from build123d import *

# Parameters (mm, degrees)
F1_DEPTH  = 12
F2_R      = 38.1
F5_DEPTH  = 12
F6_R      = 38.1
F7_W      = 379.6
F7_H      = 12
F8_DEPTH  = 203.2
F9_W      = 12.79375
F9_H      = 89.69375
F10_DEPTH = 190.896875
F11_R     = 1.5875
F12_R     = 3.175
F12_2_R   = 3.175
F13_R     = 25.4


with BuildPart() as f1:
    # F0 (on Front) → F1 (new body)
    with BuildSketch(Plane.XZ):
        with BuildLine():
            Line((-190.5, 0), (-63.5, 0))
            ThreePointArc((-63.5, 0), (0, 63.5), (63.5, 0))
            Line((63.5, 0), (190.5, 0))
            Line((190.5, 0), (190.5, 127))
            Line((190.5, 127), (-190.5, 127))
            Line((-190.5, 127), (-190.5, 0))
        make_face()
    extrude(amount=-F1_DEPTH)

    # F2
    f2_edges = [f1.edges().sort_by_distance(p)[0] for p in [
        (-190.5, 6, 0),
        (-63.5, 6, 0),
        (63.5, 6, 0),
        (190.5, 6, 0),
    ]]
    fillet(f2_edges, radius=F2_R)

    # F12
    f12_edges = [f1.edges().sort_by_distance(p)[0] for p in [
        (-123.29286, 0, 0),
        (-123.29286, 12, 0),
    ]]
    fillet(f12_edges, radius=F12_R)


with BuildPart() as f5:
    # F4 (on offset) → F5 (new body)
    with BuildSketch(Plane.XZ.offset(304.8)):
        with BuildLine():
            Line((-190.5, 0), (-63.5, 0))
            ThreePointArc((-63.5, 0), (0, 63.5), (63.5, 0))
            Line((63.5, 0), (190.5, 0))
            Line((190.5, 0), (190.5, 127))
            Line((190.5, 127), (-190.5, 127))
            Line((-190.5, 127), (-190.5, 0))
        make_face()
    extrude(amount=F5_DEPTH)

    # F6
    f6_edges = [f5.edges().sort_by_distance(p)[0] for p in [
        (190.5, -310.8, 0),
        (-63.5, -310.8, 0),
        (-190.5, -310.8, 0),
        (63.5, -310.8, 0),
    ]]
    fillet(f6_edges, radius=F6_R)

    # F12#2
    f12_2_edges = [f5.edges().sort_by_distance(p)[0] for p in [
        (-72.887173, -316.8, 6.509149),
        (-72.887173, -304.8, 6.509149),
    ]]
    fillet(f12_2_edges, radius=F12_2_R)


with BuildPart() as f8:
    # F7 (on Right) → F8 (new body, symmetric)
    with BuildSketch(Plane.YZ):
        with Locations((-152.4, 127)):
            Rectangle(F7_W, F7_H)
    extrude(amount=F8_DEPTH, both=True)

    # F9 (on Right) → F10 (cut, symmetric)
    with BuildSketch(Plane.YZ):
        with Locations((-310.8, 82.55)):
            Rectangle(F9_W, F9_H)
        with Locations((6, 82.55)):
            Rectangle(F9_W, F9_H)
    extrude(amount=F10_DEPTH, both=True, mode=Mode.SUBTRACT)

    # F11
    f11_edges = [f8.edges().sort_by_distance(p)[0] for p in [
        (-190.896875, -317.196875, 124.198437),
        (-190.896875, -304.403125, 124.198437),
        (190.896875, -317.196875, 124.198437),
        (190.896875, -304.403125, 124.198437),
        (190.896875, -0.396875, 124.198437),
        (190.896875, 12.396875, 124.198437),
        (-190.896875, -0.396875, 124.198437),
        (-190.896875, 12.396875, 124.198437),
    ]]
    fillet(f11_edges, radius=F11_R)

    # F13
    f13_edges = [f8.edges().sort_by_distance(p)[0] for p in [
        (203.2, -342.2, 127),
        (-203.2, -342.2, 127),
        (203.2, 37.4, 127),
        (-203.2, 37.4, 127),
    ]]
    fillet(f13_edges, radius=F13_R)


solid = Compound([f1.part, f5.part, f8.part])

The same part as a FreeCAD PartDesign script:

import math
import FreeCAD as App
import Part
import Sketcher
from FreeCAD import Vector
Q = App.Units.Quantity


def edges_at(feature, points):
    """Names of the edges that pass closest to the given points."""
    edges = feature.Shape.Edges
    near = lambda p: min(range(len(edges)), key=lambda i: edges[i].distToShape(Part.Vertex(*p))[0])
    return sorted({f"Edge{near(p) + 1}" for p in points})


def add_polygon(sketch, points):
    """Adds a closed chain of lines whose ends are joined by coincident constraints."""
    first, n = sketch.GeometryCount, len(points)
    for a, b in zip(points, points[1:] + points[:1]):
        sketch.addGeometry(Part.LineSegment(App.Vector(*a, 0), App.Vector(*b, 0)), False)
    for i in range(n):
        sketch.addConstraint(Sketcher.Constraint("Coincident", first + i, 2, first + (i + 1) % n, 1))

doc = App.newDocument("Part")
body = doc.addObject("PartDesign::Body", "Body")

# Sketch on XZ plane
sketch1 = body.newObject("Sketcher::SketchObject", "Sketch")
sketch1.AttachmentSupport = (doc.getObject("XZ_Plane"), [""])
sketch1.MapMode = "FlatFace"
sketch1.addGeometry(Part.LineSegment(Vector(-190.5, 0, 0), Vector(-63.5, 0, 0)), False)
sketch1.addGeometry(Part.ArcOfCircle(Part.Circle(Vector(0, 0, 0), Vector(0, 0, 1), 63.5), math.radians(0), math.radians(180)), False)
sketch1.addGeometry(Part.LineSegment(Vector(63.5, 0, 0), Vector(190.5, 0, 0)), False)
sketch1.addGeometry(Part.LineSegment(Vector(190.5, 0, 0), Vector(190.5, 127, 0)), False)
sketch1.addGeometry(Part.LineSegment(Vector(190.5, 127, 0), Vector(-190.5, 127, 0)), False)
sketch1.addGeometry(Part.LineSegment(Vector(-190.5, 127, 0), Vector(-190.5, 0, 0)), False)
sketch1.addConstraint(Sketcher.Constraint("Coincident", 0, 2, 1, 2))
sketch1.addConstraint(Sketcher.Constraint("Coincident", 1, 1, 2, 1))
sketch1.addConstraint(Sketcher.Constraint("Coincident", 2, 2, 3, 1))
sketch1.addConstraint(Sketcher.Constraint("Coincident", 3, 2, 4, 1))
sketch1.addConstraint(Sketcher.Constraint("Coincident", 4, 2, 5, 1))
sketch1.addConstraint(Sketcher.Constraint("Coincident", 5, 2, 0, 1))
sketch1.addConstraint(Sketcher.Constraint("Horizontal", 0))
sketch1.addConstraint(Sketcher.Constraint("Horizontal", 2))
sketch1.addConstraint(Sketcher.Constraint("Vertical", 3))
sketch1.addConstraint(Sketcher.Constraint("Horizontal", 4))
sketch1.addConstraint(Sketcher.Constraint("Vertical", 5))
sketch1.addConstraint(Sketcher.Constraint("Coincident", 1, 3, -1, 1))
sketch1.addConstraint(Sketcher.Constraint("Symmetric", 2, 2, 5, 2, -1, 1))
sketch1.addConstraint(Sketcher.Constraint("PointOnObject", 0, 2, -1))
sketch1.addConstraint(Sketcher.Constraint("Equal", 2, 3))
sketch1.addConstraint(Sketcher.Constraint("Radius", 1, Q("2.5 in")))
sketch1.addConstraint(Sketcher.Constraint("DistanceX", 0, 1, 0, 2, Q("5 in")))
pad1 = body.newObject("PartDesign::Pad", "Pad")
pad1.Profile = sketch1
pad1.Length = 12
pad1.Reversed = True
doc.recompute()

fillet = body.newObject("PartDesign::Fillet", "Fillet")
fillet.Base = (pad1, edges_at(pad1, [
    (-190.5, 6, 0),
    (-63.5, 6, 0),
    (63.5, 6, 0),
    (190.5, 6, 0),
]))
fillet.Radius = Q("1.5 in")
doc.recompute()

fillet2 = body.newObject("PartDesign::Fillet", "Fillet001")
fillet2.Base = (fillet, edges_at(fillet, [(-123.293, 0, 0), (-123.293, 12, 0)]))
fillet2.Radius = Q("0.125 in")
body2 = doc.addObject("PartDesign::Body", "Body001")

# Sketch on XZ plane
sketch2 = body2.newObject("Sketcher::SketchObject", "Sketch001")
sketch2.AttachmentSupport = (doc.getObject("XZ_Plane001"), [""])
sketch2.MapMode = "FlatFace"
sketch2.AttachmentOffset = App.Placement(Vector(0, 0, 12 * 25.4), App.Rotation())
sketch2.addGeometry(Part.LineSegment(Vector(-190.5, 0, 0), Vector(-63.5, 0, 0)), False)
sketch2.addGeometry(Part.ArcOfCircle(Part.Circle(Vector(0, 0, 0), Vector(0, 0, 1), 63.5), math.radians(0), math.radians(180)), False)
sketch2.addGeometry(Part.LineSegment(Vector(63.5, 0, 0), Vector(190.5, 0, 0)), False)
sketch2.addGeometry(Part.LineSegment(Vector(190.5, 0, 0), Vector(190.5, 127, 0)), False)
sketch2.addGeometry(Part.LineSegment(Vector(190.5, 127, 0), Vector(-190.5, 127, 0)), False)
sketch2.addGeometry(Part.LineSegment(Vector(-190.5, 127, 0), Vector(-190.5, 0, 0)), False)
sketch2.addConstraint(Sketcher.Constraint("Coincident", 0, 2, 1, 2))
sketch2.addConstraint(Sketcher.Constraint("Coincident", 1, 1, 2, 1))
sketch2.addConstraint(Sketcher.Constraint("Coincident", 2, 2, 3, 1))
sketch2.addConstraint(Sketcher.Constraint("Coincident", 3, 2, 4, 1))
sketch2.addConstraint(Sketcher.Constraint("Coincident", 4, 2, 5, 1))
sketch2.addConstraint(Sketcher.Constraint("Coincident", 5, 2, 0, 1))
sketch2.addConstraint(Sketcher.Constraint("Horizontal", 0))
sketch2.addConstraint(Sketcher.Constraint("Horizontal", 2))
sketch2.addConstraint(Sketcher.Constraint("Vertical", 3))
sketch2.addConstraint(Sketcher.Constraint("Horizontal", 4))
sketch2.addConstraint(Sketcher.Constraint("Vertical", 5))
sketch2.addConstraint(Sketcher.Constraint("Coincident", 1, 3, -1, 1))
sketch2.addConstraint(Sketcher.Constraint("Symmetric", 2, 2, 5, 2, -1, 1))
sketch2.addConstraint(Sketcher.Constraint("PointOnObject", 0, 2, -1))
sketch2.addConstraint(Sketcher.Constraint("Equal", 2, 3))
sketch2.addConstraint(Sketcher.Constraint("Radius", 1, Q("2.5 in")))
sketch2.addConstraint(Sketcher.Constraint("DistanceX", 0, 1, 0, 2, Q("5 in")))
pad2 = body2.newObject("PartDesign::Pad", "Pad001")
pad2.Profile = sketch2
pad2.Length = 12
doc.recompute()

fillet3 = body2.newObject("PartDesign::Fillet", "Fillet002")
fillet3.Base = (pad2, edges_at(pad2, [
    (190.5, -310.8, 0),
    (-63.5, -310.8, 0),
    (-190.5, -310.8, 0),
    (63.5, -310.8, 0),
]))
fillet3.Radius = Q("1.5 in")
doc.recompute()

fillet4 = body2.newObject("PartDesign::Fillet", "Fillet003")
fillet4.Base = (fillet3, edges_at(fillet3, [(-72.887, -316.8, 6.509), (-72.887, -304.8, 6.509)]))
fillet4.Radius = Q("0.125 in")
body3 = doc.addObject("PartDesign::Body", "Body002")

# Sketch on YZ plane
sketch3 = body3.newObject("Sketcher::SketchObject", "Sketch002")
sketch3.AttachmentSupport = (doc.getObject("YZ_Plane002"), [""])
sketch3.MapMode = "FlatFace"
add_polygon(sketch3, [(-342.2, 133), (-342.2, 121), (37.4, 121), (37.4, 133)])  # lines 0-3
sketch3.addConstraint(Sketcher.Constraint("Vertical", 0))
sketch3.addConstraint(Sketcher.Constraint("Horizontal", 1))
sketch3.addConstraint(Sketcher.Constraint("Vertical", 2))
sketch3.addConstraint(Sketcher.Constraint("Horizontal", 3))
sketch3.addConstraint(Sketcher.Constraint("DistanceX", 1, 1, 1, 2, Q("379.6 mm")))
sketch3.addConstraint(Sketcher.Constraint("DistanceY", 0, 2, 0, 1, Q("12 mm")))
sketch3.addConstraint(Sketcher.Constraint("DistanceX", 0, 2, -1, 1, Q("342.2 mm")))
sketch3.addConstraint(Sketcher.Constraint("DistanceY", -1, 1, 0, 2, Q("121 mm")))
pad3 = body3.newObject("PartDesign::Pad", "Pad002")
pad3.Profile = sketch3
pad3.Length = Q("16 in")
pad3.Midplane = True

# Sketch on YZ plane
sketch4 = body3.newObject("Sketcher::SketchObject", "Sketch003")
sketch4.AttachmentSupport = (doc.getObject("YZ_Plane002"), [""])
sketch4.MapMode = "FlatFace"
add_polygon(sketch4, [(-317.196875, 127.396875), (-317.196875, 37.703125), (-304.403125, 37.703125), (-304.403125, 127.396875)])  # lines 0-3
add_polygon(sketch4, [(-0.396875, 127.396875), (-0.396875, 37.703125), (12.396875, 37.703125), (12.396875, 127.396875)])  # lines 4-7
sketch4.addConstraint(Sketcher.Constraint("Vertical", 0))
sketch4.addConstraint(Sketcher.Constraint("Horizontal", 1))
sketch4.addConstraint(Sketcher.Constraint("Vertical", 2))
sketch4.addConstraint(Sketcher.Constraint("Horizontal", 3))
sketch4.addConstraint(Sketcher.Constraint("Vertical", 4))
sketch4.addConstraint(Sketcher.Constraint("Horizontal", 5))
sketch4.addConstraint(Sketcher.Constraint("Vertical", 6))
sketch4.addConstraint(Sketcher.Constraint("Horizontal", 7))
sketch4.addConstraint(Sketcher.Constraint("Horizontal", 1, 2, 4, 2))
sketch4.addConstraint(Sketcher.Constraint("Horizontal", 3, 2, 6, 2))
sketch4.addConstraint(Sketcher.Constraint("Equal", 3, 5))
sketch4.addConstraint(Sketcher.Constraint("DistanceY", 0, 2, 0, 1, Q("3.53125 in")))
sketch4.addConstraint(Sketcher.Constraint("DistanceY", -1, 1, 0, 2, Q("1.484375 in")))
sketch4.addConstraint(Sketcher.Constraint("DistanceX", 1, 2, -1, 1, Q("11.984375 in")))
sketch4.addConstraint(Sketcher.Constraint("DistanceX", 4, 2, -1, 1, Q("0.015625 in")))
sketch4.addConstraint(Sketcher.Constraint("DistanceX", 1, 1, 1, 2, Q("12.79375 mm")))
pocket1 = body3.newObject("PartDesign::Pocket", "Pocket")
pocket1.Profile = sketch4
pocket1.Length = Q("15.03125 in")
pocket1.Midplane = True
doc.recompute()

fillet5 = body3.newObject("PartDesign::Fillet", "Fillet004")
fillet5.Base = (pocket1, edges_at(pocket1, [
    (-190.897, -317.197, 124.198),
    (-190.897, -304.403, 124.198),
    (190.897, -317.197, 124.198),
    (190.897, -304.403, 124.198),
    (190.897, -0.397, 124.198),
    (190.897, 12.397, 124.198),
    (-190.897, -0.397, 124.198),
    (-190.897, 12.397, 124.198),
]))
fillet5.Radius = Q("0.0625 in")
doc.recompute()

fillet6 = body3.newObject("PartDesign::Fillet", "Fillet005")
fillet6.Base = (fillet5, edges_at(fillet5, [
    (203.2, -342.2, 127),
    (-203.2, -342.2, 127),
    (203.2, 37.4, 127),
    (-203.2, 37.4, 127),
]))
fillet6.Radius = Q("1 in")

doc.recompute()
